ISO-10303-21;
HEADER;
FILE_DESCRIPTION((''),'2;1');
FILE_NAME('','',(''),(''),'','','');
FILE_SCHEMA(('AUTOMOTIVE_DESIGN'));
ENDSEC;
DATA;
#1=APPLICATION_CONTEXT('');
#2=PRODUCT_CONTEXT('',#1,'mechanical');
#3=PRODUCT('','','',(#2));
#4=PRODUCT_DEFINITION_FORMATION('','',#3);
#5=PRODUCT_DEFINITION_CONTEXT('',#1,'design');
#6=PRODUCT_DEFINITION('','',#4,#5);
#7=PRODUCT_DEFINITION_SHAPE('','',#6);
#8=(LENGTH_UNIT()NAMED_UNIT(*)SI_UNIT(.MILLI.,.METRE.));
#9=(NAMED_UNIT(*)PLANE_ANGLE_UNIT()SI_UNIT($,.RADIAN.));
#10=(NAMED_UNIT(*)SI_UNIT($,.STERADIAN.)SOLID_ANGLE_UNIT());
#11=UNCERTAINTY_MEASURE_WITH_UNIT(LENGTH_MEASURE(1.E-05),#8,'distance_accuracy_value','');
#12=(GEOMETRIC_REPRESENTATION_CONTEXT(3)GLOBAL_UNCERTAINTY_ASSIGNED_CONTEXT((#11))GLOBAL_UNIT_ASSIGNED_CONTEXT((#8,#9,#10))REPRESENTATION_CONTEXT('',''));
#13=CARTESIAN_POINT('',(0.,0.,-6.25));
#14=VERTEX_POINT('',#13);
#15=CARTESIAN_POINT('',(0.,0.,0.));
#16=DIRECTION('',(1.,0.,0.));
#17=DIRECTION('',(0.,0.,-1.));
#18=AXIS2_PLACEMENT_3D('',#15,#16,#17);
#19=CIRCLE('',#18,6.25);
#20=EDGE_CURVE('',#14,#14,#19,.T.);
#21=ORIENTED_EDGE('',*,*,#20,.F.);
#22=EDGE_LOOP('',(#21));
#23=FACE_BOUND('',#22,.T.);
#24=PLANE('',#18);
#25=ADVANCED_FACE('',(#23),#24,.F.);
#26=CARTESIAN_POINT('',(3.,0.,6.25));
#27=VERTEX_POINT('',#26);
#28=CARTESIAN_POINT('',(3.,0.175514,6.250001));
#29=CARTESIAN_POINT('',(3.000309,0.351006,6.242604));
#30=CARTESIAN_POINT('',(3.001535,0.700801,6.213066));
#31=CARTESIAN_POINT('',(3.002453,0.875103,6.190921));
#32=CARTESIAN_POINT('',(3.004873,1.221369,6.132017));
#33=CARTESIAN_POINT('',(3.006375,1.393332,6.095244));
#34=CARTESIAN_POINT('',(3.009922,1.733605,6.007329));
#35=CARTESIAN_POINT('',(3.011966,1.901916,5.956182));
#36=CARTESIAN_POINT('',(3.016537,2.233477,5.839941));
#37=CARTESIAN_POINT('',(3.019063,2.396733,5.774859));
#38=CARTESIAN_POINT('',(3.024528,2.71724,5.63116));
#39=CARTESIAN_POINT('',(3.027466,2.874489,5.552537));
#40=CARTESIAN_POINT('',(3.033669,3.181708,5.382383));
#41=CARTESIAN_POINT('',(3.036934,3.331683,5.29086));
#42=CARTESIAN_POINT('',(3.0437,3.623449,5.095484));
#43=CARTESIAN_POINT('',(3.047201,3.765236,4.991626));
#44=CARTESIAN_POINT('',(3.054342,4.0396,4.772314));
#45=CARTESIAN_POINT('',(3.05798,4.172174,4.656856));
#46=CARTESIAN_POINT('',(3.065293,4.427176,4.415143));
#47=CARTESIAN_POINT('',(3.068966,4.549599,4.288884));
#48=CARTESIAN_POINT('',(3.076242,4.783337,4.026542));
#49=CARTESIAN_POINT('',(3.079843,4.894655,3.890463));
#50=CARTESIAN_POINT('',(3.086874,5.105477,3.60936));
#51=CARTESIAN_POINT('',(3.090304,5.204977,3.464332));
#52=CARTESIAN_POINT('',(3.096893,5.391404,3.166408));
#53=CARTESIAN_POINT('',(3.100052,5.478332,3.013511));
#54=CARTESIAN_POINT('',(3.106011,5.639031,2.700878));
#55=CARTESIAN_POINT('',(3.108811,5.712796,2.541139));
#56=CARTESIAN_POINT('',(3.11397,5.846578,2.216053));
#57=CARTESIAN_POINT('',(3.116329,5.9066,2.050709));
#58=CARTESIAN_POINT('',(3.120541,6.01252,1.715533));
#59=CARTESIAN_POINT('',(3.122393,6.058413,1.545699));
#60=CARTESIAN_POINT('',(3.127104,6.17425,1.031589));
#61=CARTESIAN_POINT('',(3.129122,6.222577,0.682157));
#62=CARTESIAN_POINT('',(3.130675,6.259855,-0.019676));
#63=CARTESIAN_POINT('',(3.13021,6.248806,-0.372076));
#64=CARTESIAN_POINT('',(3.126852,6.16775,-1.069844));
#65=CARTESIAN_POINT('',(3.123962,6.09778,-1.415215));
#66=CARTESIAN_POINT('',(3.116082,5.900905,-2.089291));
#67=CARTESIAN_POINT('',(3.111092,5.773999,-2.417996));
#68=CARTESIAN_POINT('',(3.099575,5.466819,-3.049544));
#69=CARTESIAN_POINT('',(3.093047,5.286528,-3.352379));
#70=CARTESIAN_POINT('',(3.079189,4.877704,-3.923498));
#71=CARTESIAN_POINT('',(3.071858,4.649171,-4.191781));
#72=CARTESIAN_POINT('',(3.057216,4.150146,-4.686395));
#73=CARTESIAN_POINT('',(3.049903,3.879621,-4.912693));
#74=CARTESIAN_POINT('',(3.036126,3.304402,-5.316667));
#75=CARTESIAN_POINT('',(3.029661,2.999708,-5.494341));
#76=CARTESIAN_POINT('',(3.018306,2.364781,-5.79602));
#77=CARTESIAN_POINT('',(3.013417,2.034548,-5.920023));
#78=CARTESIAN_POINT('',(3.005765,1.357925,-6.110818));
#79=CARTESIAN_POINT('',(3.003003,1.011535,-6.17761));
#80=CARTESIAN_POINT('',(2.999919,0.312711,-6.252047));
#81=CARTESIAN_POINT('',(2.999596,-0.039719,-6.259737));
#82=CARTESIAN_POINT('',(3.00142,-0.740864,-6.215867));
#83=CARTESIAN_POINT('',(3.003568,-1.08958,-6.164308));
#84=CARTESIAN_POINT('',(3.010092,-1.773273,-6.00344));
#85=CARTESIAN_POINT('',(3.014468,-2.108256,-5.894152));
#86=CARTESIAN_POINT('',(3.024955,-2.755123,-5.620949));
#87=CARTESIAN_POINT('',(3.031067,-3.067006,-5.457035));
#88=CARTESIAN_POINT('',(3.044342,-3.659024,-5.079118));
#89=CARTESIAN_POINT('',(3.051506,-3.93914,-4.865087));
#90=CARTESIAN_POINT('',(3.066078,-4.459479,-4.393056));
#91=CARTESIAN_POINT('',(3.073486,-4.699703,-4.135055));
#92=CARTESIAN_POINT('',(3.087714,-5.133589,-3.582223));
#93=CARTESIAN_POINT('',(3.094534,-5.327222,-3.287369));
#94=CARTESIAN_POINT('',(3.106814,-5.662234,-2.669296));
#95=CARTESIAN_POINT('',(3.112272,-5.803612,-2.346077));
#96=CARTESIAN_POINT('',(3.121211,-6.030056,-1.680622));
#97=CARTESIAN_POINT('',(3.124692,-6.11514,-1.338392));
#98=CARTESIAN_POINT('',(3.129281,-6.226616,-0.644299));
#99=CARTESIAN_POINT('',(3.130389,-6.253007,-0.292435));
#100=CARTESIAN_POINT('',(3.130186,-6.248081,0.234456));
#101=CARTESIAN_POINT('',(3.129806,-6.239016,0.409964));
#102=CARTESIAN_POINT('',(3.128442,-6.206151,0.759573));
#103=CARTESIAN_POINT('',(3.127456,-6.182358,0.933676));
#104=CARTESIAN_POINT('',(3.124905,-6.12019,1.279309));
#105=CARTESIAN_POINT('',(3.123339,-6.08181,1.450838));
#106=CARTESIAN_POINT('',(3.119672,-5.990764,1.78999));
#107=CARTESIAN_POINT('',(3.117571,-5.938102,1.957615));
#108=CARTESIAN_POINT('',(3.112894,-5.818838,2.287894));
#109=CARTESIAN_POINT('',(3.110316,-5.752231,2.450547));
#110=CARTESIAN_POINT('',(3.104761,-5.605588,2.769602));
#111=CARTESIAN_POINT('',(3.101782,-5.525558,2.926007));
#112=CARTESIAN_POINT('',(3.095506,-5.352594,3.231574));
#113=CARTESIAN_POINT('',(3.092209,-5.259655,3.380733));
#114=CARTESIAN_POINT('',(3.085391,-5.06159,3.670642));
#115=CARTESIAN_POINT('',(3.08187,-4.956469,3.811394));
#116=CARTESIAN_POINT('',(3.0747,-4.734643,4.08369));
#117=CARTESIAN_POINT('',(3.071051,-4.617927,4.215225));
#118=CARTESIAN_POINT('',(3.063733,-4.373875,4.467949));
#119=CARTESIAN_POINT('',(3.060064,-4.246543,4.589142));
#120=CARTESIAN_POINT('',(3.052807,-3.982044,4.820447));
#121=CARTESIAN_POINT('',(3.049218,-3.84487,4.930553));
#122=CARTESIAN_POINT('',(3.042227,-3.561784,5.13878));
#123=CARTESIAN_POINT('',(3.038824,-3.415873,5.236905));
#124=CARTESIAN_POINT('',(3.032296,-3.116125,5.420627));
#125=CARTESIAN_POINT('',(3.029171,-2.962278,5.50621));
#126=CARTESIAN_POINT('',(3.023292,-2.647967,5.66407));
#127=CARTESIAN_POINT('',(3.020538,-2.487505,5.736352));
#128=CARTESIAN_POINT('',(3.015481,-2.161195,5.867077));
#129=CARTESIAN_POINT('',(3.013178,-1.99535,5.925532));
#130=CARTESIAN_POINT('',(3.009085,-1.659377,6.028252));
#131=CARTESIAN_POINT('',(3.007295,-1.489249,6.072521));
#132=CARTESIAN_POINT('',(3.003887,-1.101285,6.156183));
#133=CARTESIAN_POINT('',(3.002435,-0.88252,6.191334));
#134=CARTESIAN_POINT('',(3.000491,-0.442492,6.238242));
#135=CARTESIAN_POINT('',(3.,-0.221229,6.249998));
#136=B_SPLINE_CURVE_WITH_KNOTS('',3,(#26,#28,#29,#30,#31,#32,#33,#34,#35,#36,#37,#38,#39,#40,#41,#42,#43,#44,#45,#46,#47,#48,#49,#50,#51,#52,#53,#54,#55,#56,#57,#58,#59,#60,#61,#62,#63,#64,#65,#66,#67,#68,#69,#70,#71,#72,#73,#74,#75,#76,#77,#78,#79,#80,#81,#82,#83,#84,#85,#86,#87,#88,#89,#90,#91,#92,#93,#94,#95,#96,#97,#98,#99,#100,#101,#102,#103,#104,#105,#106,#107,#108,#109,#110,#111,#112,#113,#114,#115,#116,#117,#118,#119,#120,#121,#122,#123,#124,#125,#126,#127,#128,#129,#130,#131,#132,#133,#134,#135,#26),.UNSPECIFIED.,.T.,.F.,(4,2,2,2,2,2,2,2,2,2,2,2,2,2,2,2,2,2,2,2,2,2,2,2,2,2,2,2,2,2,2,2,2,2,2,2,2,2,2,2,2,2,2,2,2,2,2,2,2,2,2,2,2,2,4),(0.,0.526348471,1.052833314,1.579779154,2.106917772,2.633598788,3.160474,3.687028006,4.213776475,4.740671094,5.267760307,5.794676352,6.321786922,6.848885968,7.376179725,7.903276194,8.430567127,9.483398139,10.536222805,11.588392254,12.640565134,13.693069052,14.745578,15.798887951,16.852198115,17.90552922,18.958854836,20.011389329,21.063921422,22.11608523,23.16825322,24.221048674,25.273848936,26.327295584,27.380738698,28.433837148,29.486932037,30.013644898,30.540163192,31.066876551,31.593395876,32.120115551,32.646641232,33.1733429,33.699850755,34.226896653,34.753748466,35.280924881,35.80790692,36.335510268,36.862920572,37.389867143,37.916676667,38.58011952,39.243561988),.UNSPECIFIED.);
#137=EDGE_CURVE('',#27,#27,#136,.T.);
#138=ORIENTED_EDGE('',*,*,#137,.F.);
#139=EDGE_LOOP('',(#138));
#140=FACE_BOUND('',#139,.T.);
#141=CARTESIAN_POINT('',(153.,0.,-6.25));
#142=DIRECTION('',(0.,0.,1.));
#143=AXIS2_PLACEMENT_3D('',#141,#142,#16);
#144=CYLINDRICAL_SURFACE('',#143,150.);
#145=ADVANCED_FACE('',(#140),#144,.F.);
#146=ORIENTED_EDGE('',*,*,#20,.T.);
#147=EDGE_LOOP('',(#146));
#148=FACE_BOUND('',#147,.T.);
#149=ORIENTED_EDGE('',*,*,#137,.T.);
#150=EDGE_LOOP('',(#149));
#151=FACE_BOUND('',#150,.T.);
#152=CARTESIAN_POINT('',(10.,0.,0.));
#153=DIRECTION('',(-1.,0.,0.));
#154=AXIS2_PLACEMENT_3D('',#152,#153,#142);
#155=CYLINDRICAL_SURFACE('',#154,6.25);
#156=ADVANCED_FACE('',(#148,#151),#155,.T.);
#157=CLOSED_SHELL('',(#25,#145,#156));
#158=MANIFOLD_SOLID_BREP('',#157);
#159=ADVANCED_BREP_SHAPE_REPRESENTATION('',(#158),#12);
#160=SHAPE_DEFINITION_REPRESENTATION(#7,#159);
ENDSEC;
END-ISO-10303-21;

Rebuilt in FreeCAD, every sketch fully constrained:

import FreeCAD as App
import Part
import Sketcher
from FreeCAD import Vector

doc = App.newDocument("Part")
params = doc.addObject("Spreadsheet::Sheet", "Params")
for row, (alias, value) in enumerate([
    ("sketch1_diameter", "12.5 mm"),
    ("pad1_length", "10 mm"),
    ("sketch2_diameter", "300 mm"),
], start=1):
    params.set(f"A{row}", alias)
    params.set(f"B{row}", "=" + value)
    params.setAlias(f"B{row}", alias)

body = doc.addObject("PartDesign::Body", "Body")

# Sketch on YZ plane
sketch1 = doc.addObject("Sketcher::SketchObject", "Sketch")
body.addObject(sketch1)
sketch1.AttachmentSupport = (doc.YZ_Plane, [""])
sketch1.MapMode = "FlatFace"
sketch1.addGeometry(Part.Circle(Vector(0, 0, 0), Vector(0, 0, 1), 6), False)
sketch1.addConstraint([
    Sketcher.Constraint("Coincident", 0, 3, -1, 1),
    Sketcher.Constraint("Diameter", 0, 12.5),
])
sketch1.setExpression("Constraints[1]", "Params.sketch1_diameter")
pad1 = doc.addObject("PartDesign::Pad", "Pad")
body.addObject(pad1)
pad1.Profile = sketch1
pad1.setExpression("Length", "Params.pad1_length")

# Sketch on XY plane
sketch2 = doc.addObject("Sketcher::SketchObject", "Sketch001")
body.addObject(sketch2)
sketch2.AttachmentSupport = (doc.XY_Plane, [""])
sketch2.MapMode = "FlatFace"
sketch2.addGeometry(Part.Circle(Vector(153, 0, 0), Vector(0, 0, 1), 150), False)
sketch2.addConstraint([
    Sketcher.Constraint("PointOnObject", 0, 3, -1),
    Sketcher.Constraint("Diameter", 0, 300.0),
    Sketcher.Constraint("DistanceX", -1, 1, 0, 3, 153.0),
])
sketch2.setExpression("Constraints[1]", "Params.sketch2_diameter")
pocket1 = doc.addObject("PartDesign::Pocket", "Pocket")
body.addObject(pocket1)
pocket1.Profile = sketch2
pocket1.Type = "ThroughAll"
pocket1.Midplane = True

doc.recompute()
